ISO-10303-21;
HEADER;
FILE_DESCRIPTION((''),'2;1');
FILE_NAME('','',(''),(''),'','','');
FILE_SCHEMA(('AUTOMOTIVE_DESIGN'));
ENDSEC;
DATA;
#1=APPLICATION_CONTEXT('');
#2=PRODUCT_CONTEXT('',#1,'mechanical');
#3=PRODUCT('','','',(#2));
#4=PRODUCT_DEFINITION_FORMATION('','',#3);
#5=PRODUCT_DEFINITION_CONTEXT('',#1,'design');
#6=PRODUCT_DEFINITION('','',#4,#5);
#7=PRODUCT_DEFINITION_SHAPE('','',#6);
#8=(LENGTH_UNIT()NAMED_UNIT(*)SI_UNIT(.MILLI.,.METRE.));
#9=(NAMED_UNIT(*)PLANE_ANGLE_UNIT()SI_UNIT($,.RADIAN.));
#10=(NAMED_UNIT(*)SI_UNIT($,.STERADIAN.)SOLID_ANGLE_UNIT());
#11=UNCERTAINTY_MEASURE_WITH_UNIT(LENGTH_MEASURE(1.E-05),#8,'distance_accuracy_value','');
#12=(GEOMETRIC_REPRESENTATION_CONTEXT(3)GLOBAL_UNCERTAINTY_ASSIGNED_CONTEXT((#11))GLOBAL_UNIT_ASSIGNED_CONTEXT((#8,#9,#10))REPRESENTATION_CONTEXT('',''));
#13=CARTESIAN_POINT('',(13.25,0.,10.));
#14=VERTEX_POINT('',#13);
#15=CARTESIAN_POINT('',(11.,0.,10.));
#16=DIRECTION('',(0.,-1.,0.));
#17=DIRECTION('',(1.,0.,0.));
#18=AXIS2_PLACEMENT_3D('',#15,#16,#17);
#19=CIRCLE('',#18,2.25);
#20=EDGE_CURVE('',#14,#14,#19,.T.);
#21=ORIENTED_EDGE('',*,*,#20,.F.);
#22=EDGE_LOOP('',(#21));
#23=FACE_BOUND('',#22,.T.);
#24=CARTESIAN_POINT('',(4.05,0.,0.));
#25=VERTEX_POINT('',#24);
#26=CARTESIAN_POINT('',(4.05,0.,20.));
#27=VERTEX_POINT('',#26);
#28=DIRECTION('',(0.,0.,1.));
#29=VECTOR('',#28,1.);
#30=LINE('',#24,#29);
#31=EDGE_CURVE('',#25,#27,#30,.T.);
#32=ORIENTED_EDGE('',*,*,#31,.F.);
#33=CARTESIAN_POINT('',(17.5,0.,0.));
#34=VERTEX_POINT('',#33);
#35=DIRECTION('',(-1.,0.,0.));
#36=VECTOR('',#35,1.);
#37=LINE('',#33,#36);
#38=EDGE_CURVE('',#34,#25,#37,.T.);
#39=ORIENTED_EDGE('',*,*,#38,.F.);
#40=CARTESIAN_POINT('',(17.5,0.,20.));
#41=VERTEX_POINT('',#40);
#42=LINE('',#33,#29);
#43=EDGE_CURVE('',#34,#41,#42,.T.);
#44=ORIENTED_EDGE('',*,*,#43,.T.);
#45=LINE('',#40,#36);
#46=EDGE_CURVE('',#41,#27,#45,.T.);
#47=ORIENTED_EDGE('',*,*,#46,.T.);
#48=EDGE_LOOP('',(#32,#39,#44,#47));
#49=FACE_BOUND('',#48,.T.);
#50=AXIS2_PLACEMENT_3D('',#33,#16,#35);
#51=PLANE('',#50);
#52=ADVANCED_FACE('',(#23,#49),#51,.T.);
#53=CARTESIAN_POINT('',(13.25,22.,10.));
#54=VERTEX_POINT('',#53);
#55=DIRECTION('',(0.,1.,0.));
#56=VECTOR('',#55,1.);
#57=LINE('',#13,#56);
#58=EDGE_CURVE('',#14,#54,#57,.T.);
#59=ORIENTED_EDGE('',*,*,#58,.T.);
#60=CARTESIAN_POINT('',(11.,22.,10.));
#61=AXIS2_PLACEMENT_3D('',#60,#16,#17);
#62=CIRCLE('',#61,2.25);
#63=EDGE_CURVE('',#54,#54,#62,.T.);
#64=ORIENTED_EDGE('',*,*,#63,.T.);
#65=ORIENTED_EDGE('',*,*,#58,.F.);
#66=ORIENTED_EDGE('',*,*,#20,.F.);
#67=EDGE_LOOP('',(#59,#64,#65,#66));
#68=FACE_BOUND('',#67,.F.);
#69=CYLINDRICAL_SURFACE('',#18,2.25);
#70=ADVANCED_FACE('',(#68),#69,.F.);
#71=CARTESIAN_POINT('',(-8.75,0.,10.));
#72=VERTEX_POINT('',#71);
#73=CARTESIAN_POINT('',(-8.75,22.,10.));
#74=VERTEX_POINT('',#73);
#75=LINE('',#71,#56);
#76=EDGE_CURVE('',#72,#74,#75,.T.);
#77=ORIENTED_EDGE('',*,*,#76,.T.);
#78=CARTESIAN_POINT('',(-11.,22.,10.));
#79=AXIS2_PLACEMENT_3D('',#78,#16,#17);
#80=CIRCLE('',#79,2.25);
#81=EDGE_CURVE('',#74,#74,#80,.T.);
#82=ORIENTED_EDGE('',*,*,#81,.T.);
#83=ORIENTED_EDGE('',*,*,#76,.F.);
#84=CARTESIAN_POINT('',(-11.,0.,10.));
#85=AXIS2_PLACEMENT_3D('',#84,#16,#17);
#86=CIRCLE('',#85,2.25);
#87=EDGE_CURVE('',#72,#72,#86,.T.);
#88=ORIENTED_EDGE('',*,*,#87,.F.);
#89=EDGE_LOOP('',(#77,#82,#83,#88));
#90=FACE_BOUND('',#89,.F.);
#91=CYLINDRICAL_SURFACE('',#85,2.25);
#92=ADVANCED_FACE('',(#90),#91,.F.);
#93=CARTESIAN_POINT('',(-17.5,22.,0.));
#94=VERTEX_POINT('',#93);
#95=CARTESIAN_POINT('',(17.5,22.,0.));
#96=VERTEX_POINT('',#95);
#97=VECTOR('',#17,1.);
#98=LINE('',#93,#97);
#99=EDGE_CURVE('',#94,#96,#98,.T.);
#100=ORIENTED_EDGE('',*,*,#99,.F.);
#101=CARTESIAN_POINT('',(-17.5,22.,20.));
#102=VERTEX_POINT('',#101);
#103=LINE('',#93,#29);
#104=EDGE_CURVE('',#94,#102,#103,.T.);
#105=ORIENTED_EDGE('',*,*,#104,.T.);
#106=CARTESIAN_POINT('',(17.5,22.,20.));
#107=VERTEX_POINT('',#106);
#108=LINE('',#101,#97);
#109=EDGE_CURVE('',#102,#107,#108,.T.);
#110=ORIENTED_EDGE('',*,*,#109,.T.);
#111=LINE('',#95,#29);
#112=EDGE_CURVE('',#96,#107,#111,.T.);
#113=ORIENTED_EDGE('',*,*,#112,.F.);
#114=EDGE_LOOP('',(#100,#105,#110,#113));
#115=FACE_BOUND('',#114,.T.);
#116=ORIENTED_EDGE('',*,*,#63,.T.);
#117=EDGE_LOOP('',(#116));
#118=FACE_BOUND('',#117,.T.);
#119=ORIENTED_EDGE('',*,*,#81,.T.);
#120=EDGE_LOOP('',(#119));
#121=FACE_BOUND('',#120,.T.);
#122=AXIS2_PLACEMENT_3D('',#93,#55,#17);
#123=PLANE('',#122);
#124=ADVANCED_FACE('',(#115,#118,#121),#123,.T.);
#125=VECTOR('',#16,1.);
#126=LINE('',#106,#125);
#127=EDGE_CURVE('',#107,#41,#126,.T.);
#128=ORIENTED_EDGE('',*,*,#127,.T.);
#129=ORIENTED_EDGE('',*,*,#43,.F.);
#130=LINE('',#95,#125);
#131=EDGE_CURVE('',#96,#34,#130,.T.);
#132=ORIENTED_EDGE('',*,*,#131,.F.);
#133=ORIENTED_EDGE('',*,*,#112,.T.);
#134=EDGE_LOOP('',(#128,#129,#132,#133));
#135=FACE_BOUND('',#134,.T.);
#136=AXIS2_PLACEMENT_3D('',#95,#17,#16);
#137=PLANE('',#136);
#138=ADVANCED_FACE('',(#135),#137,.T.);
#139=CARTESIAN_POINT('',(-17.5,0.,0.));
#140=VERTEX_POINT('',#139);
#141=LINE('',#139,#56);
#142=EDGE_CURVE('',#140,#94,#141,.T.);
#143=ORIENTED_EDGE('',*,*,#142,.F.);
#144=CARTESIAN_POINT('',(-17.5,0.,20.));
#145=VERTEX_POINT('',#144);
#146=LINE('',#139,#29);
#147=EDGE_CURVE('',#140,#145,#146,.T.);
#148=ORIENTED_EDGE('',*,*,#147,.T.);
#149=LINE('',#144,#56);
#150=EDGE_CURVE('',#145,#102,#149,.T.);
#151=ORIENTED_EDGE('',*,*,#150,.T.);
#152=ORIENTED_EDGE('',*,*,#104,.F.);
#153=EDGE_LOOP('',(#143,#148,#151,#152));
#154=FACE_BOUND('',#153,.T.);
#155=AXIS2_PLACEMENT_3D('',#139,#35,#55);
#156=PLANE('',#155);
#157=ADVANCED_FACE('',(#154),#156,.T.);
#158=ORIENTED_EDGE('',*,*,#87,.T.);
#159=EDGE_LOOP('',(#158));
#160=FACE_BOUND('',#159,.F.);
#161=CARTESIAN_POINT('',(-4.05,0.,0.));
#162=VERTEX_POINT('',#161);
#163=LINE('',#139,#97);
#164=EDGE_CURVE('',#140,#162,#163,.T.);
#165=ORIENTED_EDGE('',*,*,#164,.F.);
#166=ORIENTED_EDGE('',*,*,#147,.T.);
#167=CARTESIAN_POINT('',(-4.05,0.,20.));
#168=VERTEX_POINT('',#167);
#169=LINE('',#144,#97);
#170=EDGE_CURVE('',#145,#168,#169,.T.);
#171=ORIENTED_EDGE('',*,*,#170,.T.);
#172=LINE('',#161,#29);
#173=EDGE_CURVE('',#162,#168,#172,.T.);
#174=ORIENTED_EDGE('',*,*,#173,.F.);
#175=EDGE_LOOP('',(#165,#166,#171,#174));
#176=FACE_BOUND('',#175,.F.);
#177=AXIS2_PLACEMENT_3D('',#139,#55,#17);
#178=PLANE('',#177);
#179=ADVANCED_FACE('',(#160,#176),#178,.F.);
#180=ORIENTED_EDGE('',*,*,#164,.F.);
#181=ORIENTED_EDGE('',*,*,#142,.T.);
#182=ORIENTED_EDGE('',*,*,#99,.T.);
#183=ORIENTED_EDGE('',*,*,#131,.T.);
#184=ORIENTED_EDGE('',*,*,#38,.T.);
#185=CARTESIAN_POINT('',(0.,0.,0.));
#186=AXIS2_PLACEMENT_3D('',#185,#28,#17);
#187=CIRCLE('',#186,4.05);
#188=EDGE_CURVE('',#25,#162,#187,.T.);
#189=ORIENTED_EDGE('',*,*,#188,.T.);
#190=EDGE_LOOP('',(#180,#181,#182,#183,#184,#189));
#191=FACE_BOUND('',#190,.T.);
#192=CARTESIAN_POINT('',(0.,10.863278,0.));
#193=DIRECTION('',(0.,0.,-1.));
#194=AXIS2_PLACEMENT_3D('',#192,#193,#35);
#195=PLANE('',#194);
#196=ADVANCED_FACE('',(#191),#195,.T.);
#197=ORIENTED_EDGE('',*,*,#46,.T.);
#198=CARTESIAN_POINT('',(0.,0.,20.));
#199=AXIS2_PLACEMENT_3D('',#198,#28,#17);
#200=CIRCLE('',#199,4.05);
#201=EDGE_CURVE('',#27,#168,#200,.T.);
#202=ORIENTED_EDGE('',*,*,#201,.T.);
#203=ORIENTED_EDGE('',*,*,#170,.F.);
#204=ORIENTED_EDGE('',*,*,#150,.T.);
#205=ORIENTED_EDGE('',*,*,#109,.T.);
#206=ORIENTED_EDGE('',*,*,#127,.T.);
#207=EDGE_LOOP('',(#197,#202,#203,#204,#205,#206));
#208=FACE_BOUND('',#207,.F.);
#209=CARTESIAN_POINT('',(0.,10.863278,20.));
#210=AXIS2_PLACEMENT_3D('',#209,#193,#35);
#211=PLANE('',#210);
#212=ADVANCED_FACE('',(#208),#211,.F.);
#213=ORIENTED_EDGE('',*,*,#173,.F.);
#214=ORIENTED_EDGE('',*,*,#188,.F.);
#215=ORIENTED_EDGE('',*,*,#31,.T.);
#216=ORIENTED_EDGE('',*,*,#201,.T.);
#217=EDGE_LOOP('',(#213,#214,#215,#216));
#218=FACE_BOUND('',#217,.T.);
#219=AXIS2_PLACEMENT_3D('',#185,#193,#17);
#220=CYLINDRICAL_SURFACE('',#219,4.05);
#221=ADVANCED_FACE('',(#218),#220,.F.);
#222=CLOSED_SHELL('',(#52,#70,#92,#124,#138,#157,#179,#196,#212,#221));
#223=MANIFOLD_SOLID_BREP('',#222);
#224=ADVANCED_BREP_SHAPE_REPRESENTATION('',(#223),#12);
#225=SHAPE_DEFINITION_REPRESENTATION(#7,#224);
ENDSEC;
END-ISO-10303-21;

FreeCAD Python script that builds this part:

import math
import FreeCAD as App
import Part
import Sketcher

V = App.Vector
Q = App.Units.Quantity

doc = App.newDocument("Part")
body = doc.addObject("PartDesign::Body", "Body")

# Sketch on XY plane
sketch1 = body.newObject("Sketcher::SketchObject", "Sketch")
sketch1.AttachmentSupport = (doc.getObject("XY_Plane"), [""])
sketch1.MapMode = "FlatFace"
sketch1.addGeometry([
    Part.LineSegment(V(17.5, 22, 0), V(-17.5, 22, 0)),  # 0
    Part.LineSegment(V(-17.5, 22, 0), V(-17.5, 0, 0)),  # 1
    Part.LineSegment(V(-17.5, 0, 0), V(-4, 0, 0)),  # 2
    Part.ArcOfCircle(Part.Circle(V(0, 0, 0), V(0, 0, 1), 4), math.radians(0), math.radians(180)),  # 3
    Part.LineSegment(V(4, 0, 0), V(17.5, 0, 0)),  # 4
    Part.LineSegment(V(17.5, 0, 0), V(17.5, 22, 0)),  # 5
], False)
sketch1.addConstraint([
    Sketcher.Constraint("Coincident", 0, 2, 1, 1),
    Sketcher.Constraint("Coincident", 1, 2, 2, 1),
    Sketcher.Constraint("Coincident", 2, 2, 3, 2),
    Sketcher.Constraint("Coincident", 3, 1, 4, 1),
    Sketcher.Constraint("Coincident", 4, 2, 5, 1),
    Sketcher.Constraint("Coincident", 5, 2, 0, 1),
    Sketcher.Constraint("Horizontal", 0),
    Sketcher.Constraint("Vertical", 1),
    Sketcher.Constraint("Horizontal", 2),
    Sketcher.Constraint("Horizontal", 4),
    Sketcher.Constraint("Vertical", 5),
    Sketcher.Constraint("Coincident", 3, 3, -1, 1),
    Sketcher.Constraint("Symmetric", 1, 2, 4, 2, -1, 1),
    Sketcher.Constraint("PointOnObject", 1, 2, -1),
    Sketcher.Constraint("DistanceX", 0, 2, 0, 1, Q("35 mm")),
    Sketcher.Constraint("DistanceY", 1, 2, 1, 1, Q("22 mm")),
    Sketcher.Constraint("Radius", 3, Q("4.05 mm")),
])
pad1 = body.newObject("PartDesign::Pad", "Pad")
pad1.Profile = sketch1
pad1.Length = 20

# Sketch on XZ plane
sketch2 = body.newObject("Sketcher::SketchObject", "Sketch001")
sketch2.AttachmentSupport = (doc.getObject("XZ_Plane"), [""])
sketch2.MapMode = "FlatFace"
sketch2.addGeometry([
    Part.Circle(V(-11, 10, 0), V(0, 0, 1), 2.2),
    Part.Circle(V(11, 10, 0), V(0, 0, 1), 2.2),
], False)
sketch2.addConstraint([
    Sketcher.Constraint("Equal", 0, 1),
    Sketcher.Constraint("Symmetric", 0, 3, 1, 3, -2),
    Sketcher.Constraint("Diameter", 0, Q("4.5 mm")),
    Sketcher.Constraint("DistanceX", 0, 3, -1, 1, Q("11 mm")),
    Sketcher.Constraint("DistanceY", -1, 1, 0, 3, Q("10 mm")),
])
pocket1 = body.newObject("PartDesign::Pocket", "Pocket")
pocket1.Profile = sketch2
pocket1.Type = "ThroughAll"

doc.recompute()
